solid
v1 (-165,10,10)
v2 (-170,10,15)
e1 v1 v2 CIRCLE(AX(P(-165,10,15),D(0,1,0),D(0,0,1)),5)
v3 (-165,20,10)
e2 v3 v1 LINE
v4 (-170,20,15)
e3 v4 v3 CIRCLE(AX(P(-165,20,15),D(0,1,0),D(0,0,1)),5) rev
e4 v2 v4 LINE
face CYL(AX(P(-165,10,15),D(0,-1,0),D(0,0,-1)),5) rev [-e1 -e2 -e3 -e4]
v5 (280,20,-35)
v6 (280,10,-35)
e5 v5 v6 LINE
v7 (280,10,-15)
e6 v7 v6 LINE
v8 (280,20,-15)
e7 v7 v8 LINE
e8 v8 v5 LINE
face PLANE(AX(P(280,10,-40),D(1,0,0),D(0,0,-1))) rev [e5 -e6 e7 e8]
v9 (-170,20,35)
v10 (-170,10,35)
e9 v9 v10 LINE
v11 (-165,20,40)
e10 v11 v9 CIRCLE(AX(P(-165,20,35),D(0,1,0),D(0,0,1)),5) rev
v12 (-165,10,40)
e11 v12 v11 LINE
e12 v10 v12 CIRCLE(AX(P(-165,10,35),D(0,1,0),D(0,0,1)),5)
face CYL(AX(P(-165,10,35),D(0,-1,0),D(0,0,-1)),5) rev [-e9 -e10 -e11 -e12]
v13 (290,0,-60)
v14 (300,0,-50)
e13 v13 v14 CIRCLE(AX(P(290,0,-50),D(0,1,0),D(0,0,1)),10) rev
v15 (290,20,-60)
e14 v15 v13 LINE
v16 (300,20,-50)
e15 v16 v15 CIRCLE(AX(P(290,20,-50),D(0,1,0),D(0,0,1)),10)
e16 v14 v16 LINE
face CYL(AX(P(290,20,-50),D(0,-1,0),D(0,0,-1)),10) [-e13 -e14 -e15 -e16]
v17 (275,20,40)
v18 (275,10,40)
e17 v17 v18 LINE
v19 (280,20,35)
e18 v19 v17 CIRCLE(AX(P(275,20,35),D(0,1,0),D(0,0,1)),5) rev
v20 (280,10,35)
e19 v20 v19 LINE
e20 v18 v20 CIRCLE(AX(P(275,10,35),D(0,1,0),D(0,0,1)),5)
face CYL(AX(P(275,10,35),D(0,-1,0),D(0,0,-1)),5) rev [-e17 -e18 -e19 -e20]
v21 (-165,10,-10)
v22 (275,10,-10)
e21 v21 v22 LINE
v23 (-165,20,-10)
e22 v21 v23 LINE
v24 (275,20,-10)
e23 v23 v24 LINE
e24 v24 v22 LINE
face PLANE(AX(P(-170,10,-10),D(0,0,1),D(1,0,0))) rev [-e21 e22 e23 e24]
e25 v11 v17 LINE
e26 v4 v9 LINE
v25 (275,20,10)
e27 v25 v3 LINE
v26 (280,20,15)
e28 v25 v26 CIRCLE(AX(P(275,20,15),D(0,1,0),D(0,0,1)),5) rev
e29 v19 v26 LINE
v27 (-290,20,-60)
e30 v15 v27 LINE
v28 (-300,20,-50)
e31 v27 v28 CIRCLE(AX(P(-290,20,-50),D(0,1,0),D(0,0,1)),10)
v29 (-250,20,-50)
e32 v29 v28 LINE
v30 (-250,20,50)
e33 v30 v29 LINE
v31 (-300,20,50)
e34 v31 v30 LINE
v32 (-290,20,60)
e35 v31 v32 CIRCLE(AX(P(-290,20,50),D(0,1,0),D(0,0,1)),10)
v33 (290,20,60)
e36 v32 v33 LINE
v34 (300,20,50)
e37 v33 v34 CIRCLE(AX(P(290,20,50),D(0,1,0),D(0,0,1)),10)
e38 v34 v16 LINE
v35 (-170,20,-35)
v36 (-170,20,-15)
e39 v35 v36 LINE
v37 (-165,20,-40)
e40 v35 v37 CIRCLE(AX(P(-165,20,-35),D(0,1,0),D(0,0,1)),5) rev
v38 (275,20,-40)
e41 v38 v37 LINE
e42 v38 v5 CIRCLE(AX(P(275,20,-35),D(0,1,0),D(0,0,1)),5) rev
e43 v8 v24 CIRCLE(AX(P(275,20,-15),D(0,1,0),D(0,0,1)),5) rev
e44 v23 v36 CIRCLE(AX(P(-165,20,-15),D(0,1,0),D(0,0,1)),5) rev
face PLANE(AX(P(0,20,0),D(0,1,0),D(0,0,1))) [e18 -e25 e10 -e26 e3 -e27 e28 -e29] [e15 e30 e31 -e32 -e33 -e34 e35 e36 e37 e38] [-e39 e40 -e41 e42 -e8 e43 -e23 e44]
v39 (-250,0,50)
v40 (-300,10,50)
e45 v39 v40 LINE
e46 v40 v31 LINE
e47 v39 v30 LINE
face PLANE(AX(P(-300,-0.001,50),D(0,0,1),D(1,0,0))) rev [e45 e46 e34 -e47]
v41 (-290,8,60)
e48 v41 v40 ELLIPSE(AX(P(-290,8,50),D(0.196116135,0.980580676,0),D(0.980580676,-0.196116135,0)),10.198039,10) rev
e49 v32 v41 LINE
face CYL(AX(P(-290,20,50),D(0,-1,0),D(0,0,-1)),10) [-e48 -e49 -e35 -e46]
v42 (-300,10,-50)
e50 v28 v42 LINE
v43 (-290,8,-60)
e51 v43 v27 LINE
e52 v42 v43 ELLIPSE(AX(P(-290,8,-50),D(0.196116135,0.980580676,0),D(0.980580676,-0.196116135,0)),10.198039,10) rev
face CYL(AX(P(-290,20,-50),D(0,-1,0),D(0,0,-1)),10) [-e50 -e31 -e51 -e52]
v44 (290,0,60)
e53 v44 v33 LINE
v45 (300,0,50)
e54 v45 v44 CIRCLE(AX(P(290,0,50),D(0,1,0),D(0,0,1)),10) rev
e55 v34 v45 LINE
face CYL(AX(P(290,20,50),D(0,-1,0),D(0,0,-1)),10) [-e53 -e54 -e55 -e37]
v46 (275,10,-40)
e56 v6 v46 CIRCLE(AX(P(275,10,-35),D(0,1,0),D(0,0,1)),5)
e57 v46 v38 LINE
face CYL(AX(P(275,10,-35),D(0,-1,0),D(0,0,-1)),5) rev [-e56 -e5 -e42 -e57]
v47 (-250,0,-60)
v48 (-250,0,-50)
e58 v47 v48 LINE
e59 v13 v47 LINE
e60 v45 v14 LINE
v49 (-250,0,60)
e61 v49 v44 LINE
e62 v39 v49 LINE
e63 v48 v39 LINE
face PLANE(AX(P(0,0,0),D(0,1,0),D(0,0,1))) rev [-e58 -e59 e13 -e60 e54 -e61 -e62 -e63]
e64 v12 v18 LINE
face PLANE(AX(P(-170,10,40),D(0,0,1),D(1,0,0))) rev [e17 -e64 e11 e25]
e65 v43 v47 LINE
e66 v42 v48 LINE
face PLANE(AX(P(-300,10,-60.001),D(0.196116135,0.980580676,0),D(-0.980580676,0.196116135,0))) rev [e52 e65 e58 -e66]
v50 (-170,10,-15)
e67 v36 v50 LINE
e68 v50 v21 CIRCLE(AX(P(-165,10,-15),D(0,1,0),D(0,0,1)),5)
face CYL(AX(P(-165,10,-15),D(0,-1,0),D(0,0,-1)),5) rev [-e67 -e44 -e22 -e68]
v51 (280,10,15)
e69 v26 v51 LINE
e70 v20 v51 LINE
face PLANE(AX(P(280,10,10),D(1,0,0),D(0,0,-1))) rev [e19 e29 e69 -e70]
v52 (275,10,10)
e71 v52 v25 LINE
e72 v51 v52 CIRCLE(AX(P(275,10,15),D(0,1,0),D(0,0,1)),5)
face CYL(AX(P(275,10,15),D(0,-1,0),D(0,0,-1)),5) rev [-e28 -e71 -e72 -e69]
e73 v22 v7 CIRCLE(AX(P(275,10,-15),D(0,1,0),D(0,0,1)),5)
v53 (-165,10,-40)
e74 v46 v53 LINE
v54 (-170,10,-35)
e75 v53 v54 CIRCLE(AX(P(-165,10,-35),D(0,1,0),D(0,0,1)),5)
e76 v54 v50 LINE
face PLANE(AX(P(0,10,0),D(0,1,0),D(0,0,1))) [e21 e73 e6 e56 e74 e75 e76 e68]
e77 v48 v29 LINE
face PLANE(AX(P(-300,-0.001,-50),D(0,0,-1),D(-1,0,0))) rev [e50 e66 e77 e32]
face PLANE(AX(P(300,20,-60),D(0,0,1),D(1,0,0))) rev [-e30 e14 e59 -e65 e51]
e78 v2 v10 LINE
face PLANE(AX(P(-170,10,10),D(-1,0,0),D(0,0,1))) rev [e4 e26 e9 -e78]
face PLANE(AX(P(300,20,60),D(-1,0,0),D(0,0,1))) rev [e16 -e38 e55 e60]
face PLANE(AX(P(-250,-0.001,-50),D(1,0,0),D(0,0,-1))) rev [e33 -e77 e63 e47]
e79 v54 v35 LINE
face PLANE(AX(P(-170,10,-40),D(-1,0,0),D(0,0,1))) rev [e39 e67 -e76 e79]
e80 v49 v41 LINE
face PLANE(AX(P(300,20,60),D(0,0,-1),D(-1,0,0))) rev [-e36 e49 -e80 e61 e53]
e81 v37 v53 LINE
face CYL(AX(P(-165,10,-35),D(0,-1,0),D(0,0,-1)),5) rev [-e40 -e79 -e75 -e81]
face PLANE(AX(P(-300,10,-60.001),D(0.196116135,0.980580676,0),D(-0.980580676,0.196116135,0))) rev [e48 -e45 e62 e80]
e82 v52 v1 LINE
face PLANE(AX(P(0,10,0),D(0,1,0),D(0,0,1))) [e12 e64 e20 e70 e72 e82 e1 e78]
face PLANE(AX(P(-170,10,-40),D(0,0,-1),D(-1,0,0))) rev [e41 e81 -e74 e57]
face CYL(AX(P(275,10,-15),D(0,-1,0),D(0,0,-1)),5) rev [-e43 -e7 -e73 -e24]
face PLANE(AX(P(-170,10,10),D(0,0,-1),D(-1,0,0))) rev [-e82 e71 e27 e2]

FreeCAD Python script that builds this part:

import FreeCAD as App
import Part
import Sketcher

V = App.Vector


def edges_at(feature, points):
    """Names of the edges that pass closest to the given points."""
    edges = feature.Shape.Edges
    near = lambda p: min(range(len(edges)), key=lambda i: edges[i].distToShape(Part.Vertex(*p))[0])
    return sorted({f"Edge{near(p) + 1}" for p in points})


def add_polygon(sketch, points):
    """Adds a closed chain of lines whose ends are joined by coincident constraints."""
    first, n = sketch.GeometryCount, len(points)
    for a, b in zip(points, points[1:] + points[:1]):
        sketch.addGeometry(Part.LineSegment(App.Vector(*a, 0), App.Vector(*b, 0)), False)
    for i in range(n):
        sketch.addConstraint(Sketcher.Constraint("Coincident", first + i, 2, first + (i + 1) % n, 1))

doc = App.newDocument("Part")
body = doc.addObject("PartDesign::Body", "Body")

sketch1 = body.newObject("Sketcher::SketchObject", "Sketch")
sketch1.AttachmentSupport = (doc.getObject("XZ_Plane"), [""])
sketch1.MapMode = "FlatFace"
add_polygon(sketch1, [(-300, -60), (-300, 60), (300, 60), (300, -60)])
sketch1.addConstraint(Sketcher.Constraint("Vertical", 0))
sketch1.addConstraint(Sketcher.Constraint("Horizontal", 1))
sketch1.addConstraint(Sketcher.Constraint("Vertical", 2))
sketch1.addConstraint(Sketcher.Constraint("Horizontal", 3))
sketch1.addConstraint(Sketcher.Constraint("Symmetric", 0, 2, 2, 2, -1, 1))
sketch1.addConstraint(Sketcher.Constraint("DistanceX", 1, 1, 1, 2, 600.0))
sketch1.addConstraint(Sketcher.Constraint("DistanceY", 0, 1, 0, 2, 120.0))
pad1 = body.newObject("PartDesign::Pad", "Pad")
pad1.Profile = sketch1
pad1.Length = 20
pad1.Reversed = True

sketch2 = body.newObject("Sketcher::SketchObject", "Sketch001")
sketch2.AttachmentSupport = (doc.getObject("XY_Plane"), [""])
sketch2.MapMode = "FlatFace"
sketch2.AttachmentOffset = App.Placement(V(0, 0, 60), App.Rotation())
add_polygon(sketch2, [(-250, 0), (-300, 10), (-300, 0)])
sketch2.addConstraint(Sketcher.Constraint("Vertical", 1))
sketch2.addConstraint(Sketcher.Constraint("Horizontal", 2))
sketch2.addConstraint(Sketcher.Constraint("PointOnObject", 1, 2, -1))
sketch2.addConstraint(Sketcher.Constraint("DistanceX", 2, 1, 2, 2, 50.0))
sketch2.addConstraint(Sketcher.Constraint("DistanceY", 1, 2, 1, 1, 10.0))
sketch2.addConstraint(Sketcher.Constraint("DistanceX", 0, 2, -1, 1, 300.0))
pocket1 = body.newObject("PartDesign::Pocket", "Pocket")
pocket1.Profile = sketch2
pocket1.Type = "UpToFirst"

sketch3 = body.newObject("Sketcher::SketchObject", "Sketch002")
sketch3.AttachmentSupport = (doc.getObject("XZ_Plane"), [""])
sketch3.MapMode = "FlatFace"
sketch3.AttachmentOffset = App.Placement(V(0, 0, -20), App.Rotation())
add_polygon(sketch3, [(-170, -40), (-170, -10), (280, -10), (280, -40)])
add_polygon(sketch3, [(-170, 10), (-170, 40), (280, 40), (280, 10)])
sketch3.addConstraint(Sketcher.Constraint("Vertical", 0))
sketch3.addConstraint(Sketcher.Constraint("Horizontal", 1))
sketch3.addConstraint(Sketcher.Constraint("Vertical", 2))
sketch3.addConstraint(Sketcher.Constraint("Horizontal", 3))
sketch3.addConstraint(Sketcher.Constraint("Vertical", 4))
sketch3.addConstraint(Sketcher.Constraint("Horizontal", 5))
sketch3.addConstraint(Sketcher.Constraint("Vertical", 6))
sketch3.addConstraint(Sketcher.Constraint("Horizontal", 7))
sketch3.addConstraint(Sketcher.Constraint("Symmetric", 3, 2, 4, 2, -1))
sketch3.addConstraint(Sketcher.Constraint("Symmetric", 1, 2, 6, 2, -1))
sketch3.addConstraint(Sketcher.Constraint("DistanceX", 1, 1, 1, 2, 450.0))
sketch3.addConstraint(Sketcher.Constraint("DistanceY", 0, 1, 0, 2, 30.0))
sketch3.addConstraint(Sketcher.Constraint("DistanceX", 0, 2, -1, 1, 170.0))
sketch3.addConstraint(Sketcher.Constraint("DistanceY", 0, 2, -1, 1, 10.0))
pocket2 = body.newObject("PartDesign::Pocket", "Pocket001")
pocket2.Profile = sketch3
pocket2.Length = 10
pocket2.Reversed = True
doc.recompute()

fillet = body.newObject("PartDesign::Fillet", "Fillet")
fillet.Base = (pocket2, edges_at(pocket2, [
    (-300, 15, -60),
    (300, 10, -60),
    (300, 10, 60),
    (-300, 15, 60),
]))
fillet.Radius = 10
doc.recompute()

fillet2 = body.newObject("PartDesign::Fillet", "Fillet001")
fillet2.Base = (fillet, edges_at(fillet, [
    (-170, 15, -10),
    (-170, 15, -40),
    (280, 15, -40),
    (280, 15, -10),
    (-170, 15, 40),
    (-170, 15, 10),
    (280, 15, 10),
    (280, 15, 40),
]))
fillet2.Radius = 5

sketch4 = body.newObject("Sketcher::SketchObject", "Sketch003")
sketch4.AttachmentSupport = (doc.getObject("XZ_Plane"), [""])
sketch4.MapMode = "FlatFace"
sketch4.AttachmentOffset = App.Placement(V(0, 0, -20), App.Rotation())
add_polygon(sketch4, [(-300, -50), (-300, 50), (-250, 50), (-250, -50)])
sketch4.addConstraint(Sketcher.Constraint("Vertical", 0))
sketch4.addConstraint(Sketcher.Constraint("Horizontal", 1))
sketch4.addConstraint(Sketcher.Constraint("Vertical", 2))
sketch4.addConstraint(Sketcher.Constraint("Horizontal", 3))
sketch4.addConstraint(Sketcher.Constraint("DistanceX", 1, 1, 1, 2, 50.0))
sketch4.addConstraint(Sketcher.Constraint("DistanceY", 0, 1, 0, 2, 100.0))
sketch4.addConstraint(Sketcher.Constraint("DistanceX", 0, 2, -1, 1, 300.0))
sketch4.addConstraint(Sketcher.Constraint("DistanceY", -1, 1, 0, 2, 50.0))
pocket3 = body.newObject("PartDesign::Pocket", "Pocket002")
pocket3.Profile = sketch4
pocket3.Type = "UpToFirst"
pocket3.Reversed = True

doc.recompute()
